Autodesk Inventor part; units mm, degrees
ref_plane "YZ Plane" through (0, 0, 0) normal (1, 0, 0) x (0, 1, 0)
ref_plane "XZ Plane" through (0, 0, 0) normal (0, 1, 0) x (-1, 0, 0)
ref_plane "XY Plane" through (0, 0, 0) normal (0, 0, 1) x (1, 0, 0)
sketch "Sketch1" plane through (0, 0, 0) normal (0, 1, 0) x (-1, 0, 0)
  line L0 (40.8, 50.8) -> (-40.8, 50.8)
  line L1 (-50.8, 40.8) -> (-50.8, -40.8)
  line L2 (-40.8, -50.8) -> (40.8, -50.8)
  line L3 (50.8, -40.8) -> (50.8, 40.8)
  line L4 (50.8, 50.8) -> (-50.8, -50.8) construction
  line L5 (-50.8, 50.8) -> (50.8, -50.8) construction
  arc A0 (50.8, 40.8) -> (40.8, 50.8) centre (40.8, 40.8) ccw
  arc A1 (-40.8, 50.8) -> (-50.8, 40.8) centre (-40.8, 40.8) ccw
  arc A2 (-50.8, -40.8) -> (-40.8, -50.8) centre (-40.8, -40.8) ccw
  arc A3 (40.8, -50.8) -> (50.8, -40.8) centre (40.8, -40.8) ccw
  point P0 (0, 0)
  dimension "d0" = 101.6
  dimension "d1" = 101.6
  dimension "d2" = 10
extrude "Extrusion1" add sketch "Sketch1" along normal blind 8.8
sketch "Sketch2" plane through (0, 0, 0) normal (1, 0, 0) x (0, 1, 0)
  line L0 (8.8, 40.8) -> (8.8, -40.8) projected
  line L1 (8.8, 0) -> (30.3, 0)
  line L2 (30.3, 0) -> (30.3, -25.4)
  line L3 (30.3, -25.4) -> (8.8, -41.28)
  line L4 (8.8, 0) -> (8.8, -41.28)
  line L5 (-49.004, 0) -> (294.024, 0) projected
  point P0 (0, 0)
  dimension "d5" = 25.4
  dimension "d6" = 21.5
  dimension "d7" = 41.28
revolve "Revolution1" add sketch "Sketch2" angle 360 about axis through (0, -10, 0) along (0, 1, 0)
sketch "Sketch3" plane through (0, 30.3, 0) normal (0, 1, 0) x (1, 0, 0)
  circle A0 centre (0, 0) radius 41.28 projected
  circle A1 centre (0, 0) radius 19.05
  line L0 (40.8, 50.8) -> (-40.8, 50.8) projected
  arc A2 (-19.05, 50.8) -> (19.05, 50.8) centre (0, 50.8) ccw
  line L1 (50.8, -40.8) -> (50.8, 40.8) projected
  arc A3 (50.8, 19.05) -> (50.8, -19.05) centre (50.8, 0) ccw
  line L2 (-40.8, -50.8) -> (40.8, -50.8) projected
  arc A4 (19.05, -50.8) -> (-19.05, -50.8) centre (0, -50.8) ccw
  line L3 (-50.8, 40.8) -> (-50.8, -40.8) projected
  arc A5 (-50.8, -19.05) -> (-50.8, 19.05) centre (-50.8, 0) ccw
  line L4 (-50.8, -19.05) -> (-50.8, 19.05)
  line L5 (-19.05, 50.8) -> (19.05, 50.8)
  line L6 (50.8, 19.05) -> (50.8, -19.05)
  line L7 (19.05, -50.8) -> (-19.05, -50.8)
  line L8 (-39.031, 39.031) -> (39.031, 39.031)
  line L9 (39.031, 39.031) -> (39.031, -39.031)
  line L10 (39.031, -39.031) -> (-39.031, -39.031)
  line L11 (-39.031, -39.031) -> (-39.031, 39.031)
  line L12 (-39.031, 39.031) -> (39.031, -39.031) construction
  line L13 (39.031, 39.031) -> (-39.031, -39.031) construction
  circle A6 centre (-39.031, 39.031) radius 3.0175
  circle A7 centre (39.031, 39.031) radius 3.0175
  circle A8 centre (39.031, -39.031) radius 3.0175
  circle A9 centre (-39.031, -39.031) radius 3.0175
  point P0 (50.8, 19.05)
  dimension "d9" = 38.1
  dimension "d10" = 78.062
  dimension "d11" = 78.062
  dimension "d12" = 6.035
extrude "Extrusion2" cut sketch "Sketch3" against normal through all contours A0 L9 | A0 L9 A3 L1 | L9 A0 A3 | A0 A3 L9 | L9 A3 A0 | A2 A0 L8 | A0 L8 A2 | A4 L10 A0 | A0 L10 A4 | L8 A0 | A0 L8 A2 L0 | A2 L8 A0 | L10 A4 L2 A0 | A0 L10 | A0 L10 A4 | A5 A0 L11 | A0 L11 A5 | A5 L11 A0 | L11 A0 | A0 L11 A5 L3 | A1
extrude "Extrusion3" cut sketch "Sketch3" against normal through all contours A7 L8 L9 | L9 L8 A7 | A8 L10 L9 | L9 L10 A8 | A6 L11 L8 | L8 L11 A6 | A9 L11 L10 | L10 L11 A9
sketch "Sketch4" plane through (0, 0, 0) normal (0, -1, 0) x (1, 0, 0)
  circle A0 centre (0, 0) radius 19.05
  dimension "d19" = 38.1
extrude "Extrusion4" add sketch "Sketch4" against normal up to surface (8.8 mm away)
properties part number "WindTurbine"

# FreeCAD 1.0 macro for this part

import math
import FreeCAD as App
import Part
import Sketcher

V = App.Vector


def add_polygon(sketch, points):
    """Adds a closed chain of lines whose ends are joined by coincident constraints."""
    first, n = sketch.GeometryCount, len(points)
    for a, b in zip(points, points[1:] + points[:1]):
        sketch.addGeometry(Part.LineSegment(App.Vector(*a, 0), App.Vector(*b, 0)), False)
    for i in range(n):
        sketch.addConstraint(Sketcher.Constraint("Coincident", first + i, 2, first + (i + 1) % n, 1))

doc = App.newDocument("Part")
body = doc.addObject("PartDesign::Body", "Body")

# Sketch on XZ plane
sketch1 = body.newObject("Sketcher::SketchObject", "Sketch")
sketch1.AttachmentSupport = (doc.getObject("XZ_Plane"), [""])
sketch1.MapMode = "FlatFace"
sketch1.addGeometry(Part.ArcOfCircle(Part.Circle(V(-41, 41, 0), V(0, 0, 1), 10), math.radians(90), math.radians(180)), False)
sketch1.addGeometry(Part.LineSegment(V(-41, 51, 0), V(41, 51, 0)), False)
sketch1.addGeometry(Part.ArcOfCircle(Part.Circle(V(41, 41, 0), V(0, 0, 1), 10), math.radians(0), math.radians(90)), False)
sketch1.addGeometry(Part.LineSegment(V(51, 41, 0), V(51, -41, 0)), False)
sketch1.addGeometry(Part.ArcOfCircle(Part.Circle(V(41, -41, 0), V(0, 0, 1), 10), math.radians(-90), math.radians(0)), False)
sketch1.addGeometry(Part.LineSegment(V(41, -51, 0), V(-41, -51, 0)), False)
sketch1.addGeometry(Part.ArcOfCircle(Part.Circle(V(-41, -41, 0), V(0, 0, 1), 10), math.radians(180), math.radians(270)), False)
sketch1.addGeometry(Part.LineSegment(V(-51, -41, 0), V(-51, 41, 0)), False)
sketch1.addConstraint(Sketcher.Constraint("Tangent", 0, 1, 1, 1))
sketch1.addConstraint(Sketcher.Constraint("Tangent", 1, 2, 2, 2))
sketch1.addConstraint(Sketcher.Constraint("Tangent", 2, 1, 3, 1))
sketch1.addConstraint(Sketcher.Constraint("Tangent", 3, 2, 4, 2))
sketch1.addConstraint(Sketcher.Constraint("Tangent", 4, 1, 5, 1))
sketch1.addConstraint(Sketcher.Constraint("Tangent", 5, 2, 6, 2))
sketch1.addConstraint(Sketcher.Constraint("Tangent", 6, 1, 7, 1))
sketch1.addConstraint(Sketcher.Constraint("Tangent", 7, 2, 0, 2))
sketch1.addConstraint(Sketcher.Constraint("Horizontal", 1))
sketch1.addConstraint(Sketcher.Constraint("Vertical", 3))
sketch1.addConstraint(Sketcher.Constraint("Horizontal", 5))
sketch1.addConstraint(Sketcher.Constraint("Vertical", 7))
sketch1.addConstraint(Sketcher.Constraint("Equal", 0, 2))
sketch1.addConstraint(Sketcher.Constraint("Equal", 2, 4))
sketch1.addConstraint(Sketcher.Constraint("Equal", 4, 6))
sketch1.addConstraint(Sketcher.Constraint("Symmetric", 0, 3, 4, 3, -1, 1))
sketch1.addConstraint(Sketcher.Constraint("Equal", 5, 3))
sketch1.addConstraint(Sketcher.Constraint("Radius", 0, 10.0))
sketch1.addConstraint(Sketcher.Constraint("DistanceX", 1, 1, 1, 2, 81.6))
pad1 = body.newObject("PartDesign::Pad", "Pad")
pad1.Profile = sketch1
pad1.Length = 8.8
pad1.Reversed = True

# Sketch on YZ plane
sketch2 = body.newObject("Sketcher::SketchObject", "Sketch001")
sketch2.AttachmentSupport = (doc.getObject("YZ_Plane"), [""])
sketch2.MapMode = "FlatFace"
add_polygon(sketch2, [(30, 0), (9, 0), (9, -41), (30, -25)])  # lines 0-3
sketch2.addConstraint(Sketcher.Constraint("Horizontal", 0))
sketch2.addConstraint(Sketcher.Constraint("Vertical", 1))
sketch2.addConstraint(Sketcher.Constraint("Vertical", 3))
sketch2.addConstraint(Sketcher.Constraint("PointOnObject", 0, 2, -1))
sketch2.addConstraint(Sketcher.Constraint("DistanceX", 0, 2, 0, 1, 21.5))
sketch2.addConstraint(Sketcher.Constraint("DistanceY", 3, 1, 3, 2, 25.4))
sketch2.addConstraint(Sketcher.Constraint("DistanceY", 1, 2, 1, 1, 41.28))
sketch2.addConstraint(Sketcher.Constraint("DistanceX", -1, 1, 0, 2, 8.8))
revolution = body.newObject("PartDesign::Revolution", "Revolution")
revolution.Profile = sketch2
revolution.ReferenceAxis = (sketch2, ["H_Axis"])
revolution.Angle = 360

# Sketch on XZ plane
sketch3 = body.newObject("Sketcher::SketchObject", "Sketch002")
sketch3.AttachmentSupport = (doc.getObject("XZ_Plane"), [""])
sketch3.MapMode = "FlatFace"
sketch3.AttachmentOffset = App.Placement(V(0, 0, -30.3), App.Rotation())
sketch3.addGeometry(Part.ArcOfCircle(Part.Circle(V(51, 0, 0), V(0, 0, 1), 19), math.radians(90), math.radians(270)), False)
sketch3.addGeometry(Part.LineSegment(V(51, 19, 0), V(51, -19, 0)), False)
sketch3.addGeometry(Part.LineSegment(V(19, -51, 0), V(-19, -51, 0)), False)
sketch3.addGeometry(Part.ArcOfCircle(Part.Circle(V(0, -51, 0), V(0, 0, 1), 19), math.radians(0), math.radians(180)), False)
sketch3.addGeometry(Part.LineSegment(V(-19, 51, 0), V(19, 51, 0)), False)
sketch3.addGeometry(Part.ArcOfCircle(Part.Circle(V(0, 51, 0), V(0, 0, 1), 19), math.radians(180), math.radians(360)), False)
sketch3.addGeometry(Part.LineSegment(V(-51, -19, 0), V(-51, 19, 0)), False)
sketch3.addGeometry(Part.ArcOfCircle(Part.Circle(V(-51, 0, 0), V(0, 0, 1), 19), math.radians(-90), math.radians(90)), False)
sketch3.addGeometry(Part.Circle(V(0, 0, 0), V(0, 0, 1), 19), False)
sketch3.addConstraint(Sketcher.Constraint("Coincident", 0, 1, 1, 1))
sketch3.addConstraint(Sketcher.Constraint("Coincident", 1, 2, 0, 2))
sketch3.addConstraint(Sketcher.Constraint("Coincident", 2, 1, 3, 1))
sketch3.addConstraint(Sketcher.Constraint("Coincident", 3, 2, 2, 2))
sketch3.addConstraint(Sketcher.Constraint("Coincident", 4, 1, 5, 1))
sketch3.addConstraint(Sketcher.Constraint("Coincident", 5, 2, 4, 2))
sketch3.addConstraint(Sketcher.Constraint("Coincident", 6, 1, 7, 1))
sketch3.addConstraint(Sketcher.Constraint("Coincident", 7, 2, 6, 2))
sketch3.addConstraint(Sketcher.Constraint("Vertical", 1))
sketch3.addConstraint(Sketcher.Constraint("Horizontal", 2))
sketch3.addConstraint(Sketcher.Constraint("Horizontal", 4))
sketch3.addConstraint(Sketcher.Constraint("Vertical", 6))
sketch3.addConstraint(Sketcher.Constraint("Coincident", 8, 3, -1, 1))
sketch3.addConstraint(Sketcher.Constraint("Equal", 0, 3))
sketch3.addConstraint(Sketcher.Constraint("Equal", 3, 5))
sketch3.addConstraint(Sketcher.Constraint("Equal", 5, 7))
sketch3.addConstraint(Sketcher.Constraint("Equal", 7, 8))
sketch3.addConstraint(Sketcher.Constraint("Symmetric", 3, 3, 5, 3, -1, 1))
sketch3.addConstraint(Sketcher.Constraint("Symmetric", 0, 3, 7, 3, -1, 1))
sketch3.addConstraint(Sketcher.Constraint("Symmetric", 1, 2, 6, 1, -2))
sketch3.addConstraint(Sketcher.Constraint("Symmetric", 3, 2, 4, 1, -1))
sketch3.addConstraint(Sketcher.Constraint("Horizontal", 3, 3, 2, 1))
sketch3.addConstraint(Sketcher.Constraint("Vertical", 7, 3, 6, 1))
sketch3.addConstraint(Sketcher.Constraint("Diameter", 8, 38.1))
sketch3.addConstraint(Sketcher.Constraint("DistanceX", -1, 1, 0, 3, 50.8))
sketch3.addConstraint(Sketcher.Constraint("DistanceY", 3, 3, -1, 1, 50.8))
pocket1 = body.newObject("PartDesign::Pocket", "Pocket")
pocket1.Profile = sketch3
pocket1.Type = "ThroughAll"
pocket1.Reversed = True

# Sketch on XZ plane
sketch4 = body.newObject("Sketcher::SketchObject", "Sketch003")
sketch4.AttachmentSupport = (doc.getObject("XZ_Plane"), [""])
sketch4.MapMode = "FlatFace"
sketch4.AttachmentOffset = App.Placement(V(0, 0, -30.3), App.Rotation())
sketch4.addGeometry(Part.Circle(V(39, -39, 0), V(0, 0, 1), 3), False)
sketch4.addGeometry(Part.Circle(V(39, 39, 0), V(0, 0, 1), 3), False)
sketch4.addGeometry(Part.Circle(V(-39, -39, 0), V(0, 0, 1), 3), False)
sketch4.addGeometry(Part.Circle(V(-39, 39, 0), V(0, 0, 1), 3), False)
sketch4.addConstraint(Sketcher.Constraint("Equal", 0, 1))
sketch4.addConstraint(Sketcher.Constraint("Equal", 1, 2))
sketch4.addConstraint(Sketcher.Constraint("Equal", 2, 3))
sketch4.addConstraint(Sketcher.Constraint("Symmetric", 1, 3, 2, 3, -1, 1))
sketch4.addConstraint(Sketcher.Constraint("Symmetric", 0, 3, 3, 3, -1, 1))
sketch4.addConstraint(Sketcher.Constraint("Symmetric", 0, 3, 2, 3, -2))
sketch4.addConstraint(Sketcher.Constraint("Diameter", 0, 6.035))
sketch4.addConstraint(Sketcher.Constraint("DistanceY", 0, 3, 1, 3, 78.062))
sketch4.addConstraint(Sketcher.Constraint("DistanceX", 2, 3, 0, 3, 78.062))
pocket2 = body.newObject("PartDesign::Pocket", "Pocket001")
pocket2.Profile = sketch4
pocket2.Type = "ThroughAll"
pocket2.Reversed = True

# Sketch on XZ plane
sketch5 = body.newObject("Sketcher::SketchObject", "Sketch004")
sketch5.AttachmentSupport = (doc.getObject("XZ_Plane"), [""])
sketch5.MapMode = "FlatFace"
sketch5.addGeometry(Part.Circle(V(0, 0, 0), V(0, 0, 1), 19), False)
sketch5.addConstraint(Sketcher.Constraint("Coincident", 0, 3, -1, 1))
sketch5.addConstraint(Sketcher.Constraint("Diameter", 0, 38.1))
pad2 = body.newObject("PartDesign::Pad", "Pad001")
pad2.Profile = sketch5
pad2.Length = 8.8
pad2.Reversed = True

doc.recompute()
